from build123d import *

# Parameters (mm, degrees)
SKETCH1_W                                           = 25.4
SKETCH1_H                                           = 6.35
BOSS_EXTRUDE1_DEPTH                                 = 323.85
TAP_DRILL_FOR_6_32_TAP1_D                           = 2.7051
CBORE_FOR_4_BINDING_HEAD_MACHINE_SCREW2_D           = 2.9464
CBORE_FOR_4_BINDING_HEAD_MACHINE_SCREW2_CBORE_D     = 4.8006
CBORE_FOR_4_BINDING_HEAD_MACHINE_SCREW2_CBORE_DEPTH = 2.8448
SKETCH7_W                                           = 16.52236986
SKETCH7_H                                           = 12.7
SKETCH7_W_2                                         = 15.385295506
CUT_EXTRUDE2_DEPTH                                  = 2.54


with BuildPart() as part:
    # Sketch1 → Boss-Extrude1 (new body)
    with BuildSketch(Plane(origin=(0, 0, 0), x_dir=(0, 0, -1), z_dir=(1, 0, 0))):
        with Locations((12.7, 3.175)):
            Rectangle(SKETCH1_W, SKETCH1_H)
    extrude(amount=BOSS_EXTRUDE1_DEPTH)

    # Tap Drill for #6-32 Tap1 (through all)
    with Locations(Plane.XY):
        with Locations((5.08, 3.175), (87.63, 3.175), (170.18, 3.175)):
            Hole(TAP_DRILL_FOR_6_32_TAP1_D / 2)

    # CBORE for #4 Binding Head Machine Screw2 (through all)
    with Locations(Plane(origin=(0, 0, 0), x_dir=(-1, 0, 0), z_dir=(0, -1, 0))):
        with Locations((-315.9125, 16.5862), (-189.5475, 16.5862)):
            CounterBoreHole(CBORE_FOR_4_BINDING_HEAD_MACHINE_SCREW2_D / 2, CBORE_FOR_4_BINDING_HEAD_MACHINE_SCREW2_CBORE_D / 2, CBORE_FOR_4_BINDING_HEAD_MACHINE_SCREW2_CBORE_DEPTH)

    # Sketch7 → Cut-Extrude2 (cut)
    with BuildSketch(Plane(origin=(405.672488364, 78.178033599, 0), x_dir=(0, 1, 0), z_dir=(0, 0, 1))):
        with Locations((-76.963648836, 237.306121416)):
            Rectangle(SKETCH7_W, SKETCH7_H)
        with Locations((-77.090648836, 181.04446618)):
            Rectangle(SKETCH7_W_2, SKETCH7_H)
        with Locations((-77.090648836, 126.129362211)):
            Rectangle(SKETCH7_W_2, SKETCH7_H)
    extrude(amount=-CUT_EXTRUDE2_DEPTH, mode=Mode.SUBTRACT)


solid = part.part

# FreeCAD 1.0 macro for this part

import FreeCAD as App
import Part
import Sketcher
Q = App.Units.Quantity


def add_polygon(sketch, points):
    """Adds a closed chain of lines whose ends are joined by coincident constraints."""
    first, n = sketch.GeometryCount, len(points)
    for a, b in zip(points, points[1:] + points[:1]):
        sketch.addGeometry(Part.LineSegment(App.Vector(*a, 0), App.Vector(*b, 0)), False)
    for i in range(n):
        sketch.addConstraint(Sketcher.Constraint("Coincident", first + i, 2, first + (i + 1) % n, 1))

doc = App.newDocument("Part")
body = doc.addObject("PartDesign::Body", "Body")

sketch1 = body.newObject("Sketcher::SketchObject", "Sketch")
sketch1.AttachmentSupport = (doc.getObject("YZ_Plane"), [""])
sketch1.MapMode = "FlatFace"
add_polygon(sketch1, [(6, 0), (0, 0), (0, -25), (6, -25)])
sketch1.addConstraint(Sketcher.Constraint("Horizontal", 0))
sketch1.addConstraint(Sketcher.Constraint("Vertical", 1))
sketch1.addConstraint(Sketcher.Constraint("Horizontal", 2))
sketch1.addConstraint(Sketcher.Constraint("Vertical", 3))
sketch1.addConstraint(Sketcher.Constraint("Coincident", 0, 2, -1, 1))
sketch1.addConstraint(Sketcher.Constraint("DistanceY", 1, 2, 1, 1, Q("1 in")))
sketch1.addConstraint(Sketcher.Constraint("DistanceX", 0, 2, 0, 1, Q("0.25 in")))
pad1 = body.newObject("PartDesign::Pad", "Pad")
pad1.Profile = sketch1
pad1.Length = Q("12.75 in")

sketch2 = body.newObject("Sketcher::SketchObject", "Sketch001")
sketch2.AttachmentSupport = (doc.getObject("XY_Plane"), [""])
sketch2.MapMode = "FlatFace"
sketch2.addGeometry(Part.Circle(App.Vector(5.1, 3.2, 0), App.Vector(0, 0, 1), 1.4), False)
sketch2.addGeometry(Part.Circle(App.Vector(87.6, 3.2, 0), App.Vector(0, 0, 1), 1.4), False)
sketch2.addGeometry(Part.Circle(App.Vector(170.2, 3.2, 0), App.Vector(0, 0, 1), 1.4), False)
sketch2.addConstraint(Sketcher.Constraint("Equal", 0, 1))
sketch2.addConstraint(Sketcher.Constraint("Equal", 1, 2))
sketch2.addConstraint(Sketcher.Constraint("Horizontal", 0, 3, 1, 3))
sketch2.addConstraint(Sketcher.Constraint("Horizontal", 1, 3, 2, 3))
sketch2.addConstraint(Sketcher.Constraint("Diameter", 0, Q("0.1065 in")))
sketch2.addConstraint(Sketcher.Constraint("DistanceX", -1, 1, 0, 3, Q("0.2 in")))
sketch2.addConstraint(Sketcher.Constraint("DistanceX", -1, 1, 2, 3, Q("6.7 in")))
sketch2.addConstraint(Sketcher.Constraint("DistanceX", -1, 1, 1, 3, Q("3.45 in")))
sketch2.addConstraint(Sketcher.Constraint("DistanceY", -1, 1, 0, 3, Q("0.125 in")))
doc.recompute()
hole = body.newObject("PartDesign::Hole", "Hole")
hole.Profile = sketch2
hole.ThreadType = "None"
hole.Diameter = Q("0.1065 in")
hole.DepthType = "ThroughAll"

sketch3 = body.newObject("Sketcher::SketchObject", "Sketch002")
sketch3.AttachmentSupport = (doc.getObject("XZ_Plane"), [""])
sketch3.MapMode = "FlatFace"
sketch3.addGeometry(Part.Circle(App.Vector(315.9, -16.6, 0), App.Vector(0, 0, 1), 1.5), False)
sketch3.addGeometry(Part.Circle(App.Vector(189.5, -16.6, 0), App.Vector(0, 0, 1), 1.5), False)
sketch3.addConstraint(Sketcher.Constraint("Equal", 0, 1))
sketch3.addConstraint(Sketcher.Constraint("Horizontal", 0, 3, 1, 3))
sketch3.addConstraint(Sketcher.Constraint("Diameter", 0, Q("0.116 in")))
sketch3.addConstraint(Sketcher.Constraint("DistanceX", -1, 1, 0, 3, Q("12.4375 in")))
sketch3.addConstraint(Sketcher.Constraint("DistanceY", 0, 3, -1, 1, Q("0.653 in")))
sketch3.addConstraint(Sketcher.Constraint("DistanceX", 1, 3, 0, 3, Q("4.975 in")))
doc.recompute()
hole2 = body.newObject("PartDesign::Hole", "Hole001")
hole2.Profile = sketch3
hole2.ThreadType = "None"
hole2.Diameter = Q("0.116 in")
hole2.DepthType = "ThroughAll"
hole2.HoleCutType = "Counterbore"
hole2.HoleCutDiameter = Q("0.189 in")
hole2.HoleCutDepth = Q("0.112 in")

sketch4 = body.newObject("Sketcher::SketchObject", "Sketch003")
sketch4.AttachmentSupport = (doc.getObject("XY_Plane"), [""])
sketch4.MapMode = "FlatFace"
add_polygon(sketch4, [(162, -7), (175, -7), (175, 9), (162, 9)])
add_polygon(sketch4, [(218, -7), (231, -7), (231, 9), (218, 9)])
add_polygon(sketch4, [(273, -7), (286, -7), (286, 9), (273, 9)])
sketch4.addConstraint(Sketcher.Constraint("Horizontal", 0))
sketch4.addConstraint(Sketcher.Constraint("Vertical", 1))
sketch4.addConstraint(Sketcher.Constraint("Horizontal", 2))
sketch4.addConstraint(Sketcher.Constraint("Vertical", 3))
sketch4.addConstraint(Sketcher.Constraint("Horizontal", 4))
sketch4.addConstraint(Sketcher.Constraint("Vertical", 5))
sketch4.addConstraint(Sketcher.Constraint("Horizontal", 6))
sketch4.addConstraint(Sketcher.Constraint("Vertical", 7))
sketch4.addConstraint(Sketcher.Constraint("Horizontal", 8))
sketch4.addConstraint(Sketcher.Constraint("Vertical", 9))
sketch4.addConstraint(Sketcher.Constraint("Horizontal", 10))
sketch4.addConstraint(Sketcher.Constraint("Vertical", 11))
sketch4.addConstraint(Sketcher.Constraint("Horizontal", 7, 2, 8, 2))
sketch4.addConstraint(Sketcher.Constraint("Horizontal", 6, 2, 9, 2))
sketch4.addConstraint(Sketcher.Constraint("Equal", 2, 4))
sketch4.addConstraint(Sketcher.Constraint("Equal", 6, 8))
sketch4.addConstraint(Sketcher.Constraint("DistanceX", 0, 1, 0, 2, Q("0.5 in")))
sketch4.addConstraint(Sketcher.Constraint("DistanceY", 1, 1, 1, 2, Q("16.52237 mm")))
sketch4.addConstraint(Sketcher.Constraint("DistanceY", 0, 2, -1, 1, Q("7.0468 mm")))
sketch4.addConstraint(Sketcher.Constraint("DistanceY", 5, 1, 5, 2, Q("15.385296 mm")))
sketch4.addConstraint(Sketcher.Constraint("DistanceX", 0, 2, 8, 2, Q("111.176759 mm")))
sketch4.addConstraint(Sketcher.Constraint("DistanceX", -1, 1, 0, 2, Q("174.716367 mm")))
sketch4.addConstraint(Sketcher.Constraint("DistanceX", -1, 1, 4, 2, Q("230.978022 mm")))
sketch4.addConstraint(Sketcher.Constraint("DistanceY", 4, 2, -1, 1, Q("6.605263 mm")))
pocket1 = body.newObject("PartDesign::Pocket", "Pocket")
pocket1.Profile = sketch4
pocket1.Length = Q("0.1 in")

doc.recompute()
